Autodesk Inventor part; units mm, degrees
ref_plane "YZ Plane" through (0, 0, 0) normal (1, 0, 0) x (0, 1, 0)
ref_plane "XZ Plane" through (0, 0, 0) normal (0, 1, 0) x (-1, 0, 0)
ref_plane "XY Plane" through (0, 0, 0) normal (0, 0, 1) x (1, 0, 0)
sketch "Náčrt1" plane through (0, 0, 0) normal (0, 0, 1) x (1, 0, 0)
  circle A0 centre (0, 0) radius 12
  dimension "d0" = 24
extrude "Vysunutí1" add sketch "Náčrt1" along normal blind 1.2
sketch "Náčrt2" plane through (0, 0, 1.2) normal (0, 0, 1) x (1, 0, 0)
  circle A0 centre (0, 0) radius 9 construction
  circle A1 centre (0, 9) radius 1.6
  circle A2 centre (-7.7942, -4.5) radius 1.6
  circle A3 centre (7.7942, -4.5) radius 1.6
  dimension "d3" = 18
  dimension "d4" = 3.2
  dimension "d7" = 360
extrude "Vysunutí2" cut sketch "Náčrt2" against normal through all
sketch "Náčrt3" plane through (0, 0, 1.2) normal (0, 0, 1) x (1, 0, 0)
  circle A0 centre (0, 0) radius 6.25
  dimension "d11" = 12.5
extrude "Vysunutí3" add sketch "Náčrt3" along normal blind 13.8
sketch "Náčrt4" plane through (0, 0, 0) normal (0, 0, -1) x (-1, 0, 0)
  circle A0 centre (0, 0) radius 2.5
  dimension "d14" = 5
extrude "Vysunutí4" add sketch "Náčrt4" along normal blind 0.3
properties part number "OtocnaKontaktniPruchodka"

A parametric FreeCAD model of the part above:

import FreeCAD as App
import Part
import Sketcher
Q = App.Units.Quantity

doc = App.newDocument("Part")
body = doc.addObject("PartDesign::Body", "Body")

# Sketch on XY plane
sketch1 = doc.addObject("Sketcher::SketchObject", "Sketch")
body.addObject(sketch1)
sketch1.AttachmentSupport = (doc.XY_Plane, [""])
sketch1.MapMode = "FlatFace"
sketch1.addGeometry(Part.Circle(App.Vector(0, 0, 0), App.Vector(0, 0, 1), 12), False)
sketch1.addConstraint(Sketcher.Constraint("Coincident", 0, 3, -1, 1))
sketch1.addConstraint(Sketcher.Constraint("Diameter", 0, Q("24 mm")))
pad1 = doc.addObject("PartDesign::Pad", "Pad")
body.addObject(pad1)
pad1.Profile = sketch1
pad1.Length = 1.2

# Sketch on XY plane
sketch2 = doc.addObject("Sketcher::SketchObject", "Sketch001")
body.addObject(sketch2)
sketch2.AttachmentSupport = (doc.XY_Plane, [""])
sketch2.MapMode = "FlatFace"
sketch2.AttachmentOffset = App.Placement(App.Vector(0, 0, 1.2), App.Rotation())
sketch2.addGeometry(Part.Circle(App.Vector(0, 9, 0), App.Vector(0, 0, 1), 1.6), False)
sketch2.addGeometry(Part.Circle(App.Vector(-7.7942, -4.5, 0), App.Vector(0, 0, 1), 1.6), False)
sketch2.addGeometry(Part.Circle(App.Vector(7.7942, -4.5, 0), App.Vector(0, 0, 1), 1.6), False)
sketch2.addConstraint(Sketcher.Constraint("Equal", 0, 1))
sketch2.addConstraint(Sketcher.Constraint("Equal", 1, 2))
sketch2.addConstraint(Sketcher.Constraint("Symmetric", 1, 3, 2, 3, -2))
sketch2.addConstraint(Sketcher.Constraint("PointOnObject", 0, 3, -2))
sketch2.addConstraint(Sketcher.Constraint("Diameter", 0, Q("3.2 mm")))
sketch2.addConstraint(Sketcher.Constraint("DistanceY", -1, 1, 0, 3, Q("9 mm")))
sketch2.addConstraint(Sketcher.Constraint("DistanceY", 1, 3, -1, 1, Q("4.5 mm")))
sketch2.addConstraint(Sketcher.Constraint("DistanceX", 1, 3, -1, 1, Q("7.7942 mm")))
pocket1 = doc.addObject("PartDesign::Pocket", "Pocket")
body.addObject(pocket1)
pocket1.Profile = sketch2
pocket1.Type = "ThroughAll"

# Sketch on XY plane
sketch3 = doc.addObject("Sketcher::SketchObject", "Sketch002")
body.addObject(sketch3)
sketch3.AttachmentSupport = (doc.XY_Plane, [""])
sketch3.MapMode = "FlatFace"
sketch3.AttachmentOffset = App.Placement(App.Vector(0, 0, 1.2), App.Rotation())
sketch3.addGeometry(Part.Circle(App.Vector(0, 0, 0), App.Vector(0, 0, 1), 6.25), False)
sketch3.addConstraint(Sketcher.Constraint("Coincident", 0, 3, -1, 1))
sketch3.addConstraint(Sketcher.Constraint("Diameter", 0, Q("12.5 mm")))
pad2 = doc.addObject("PartDesign::Pad", "Pad001")
body.addObject(pad2)
pad2.Profile = sketch3
pad2.Length = 13.8

# Sketch on XY plane
sketch4 = doc.addObject("Sketcher::SketchObject", "Sketch003")
body.addObject(sketch4)
sketch4.AttachmentSupport = (doc.XY_Plane, [""])
sketch4.MapMode = "FlatFace"
sketch4.addGeometry(Part.Circle(App.Vector(0, 0, 0), App.Vector(0, 0, 1), 2.5), False)
sketch4.addConstraint(Sketcher.Constraint("Coincident", 0, 3, -1, 1))
sketch4.addConstraint(Sketcher.Constraint("Diameter", 0, Q("5 mm")))
pad3 = doc.addObject("PartDesign::Pad", "Pad002")
body.addObject(pad3)
pad3.Profile = sketch4
pad3.Length = 0.3
pad3.Reversed = True

doc.recompute()
